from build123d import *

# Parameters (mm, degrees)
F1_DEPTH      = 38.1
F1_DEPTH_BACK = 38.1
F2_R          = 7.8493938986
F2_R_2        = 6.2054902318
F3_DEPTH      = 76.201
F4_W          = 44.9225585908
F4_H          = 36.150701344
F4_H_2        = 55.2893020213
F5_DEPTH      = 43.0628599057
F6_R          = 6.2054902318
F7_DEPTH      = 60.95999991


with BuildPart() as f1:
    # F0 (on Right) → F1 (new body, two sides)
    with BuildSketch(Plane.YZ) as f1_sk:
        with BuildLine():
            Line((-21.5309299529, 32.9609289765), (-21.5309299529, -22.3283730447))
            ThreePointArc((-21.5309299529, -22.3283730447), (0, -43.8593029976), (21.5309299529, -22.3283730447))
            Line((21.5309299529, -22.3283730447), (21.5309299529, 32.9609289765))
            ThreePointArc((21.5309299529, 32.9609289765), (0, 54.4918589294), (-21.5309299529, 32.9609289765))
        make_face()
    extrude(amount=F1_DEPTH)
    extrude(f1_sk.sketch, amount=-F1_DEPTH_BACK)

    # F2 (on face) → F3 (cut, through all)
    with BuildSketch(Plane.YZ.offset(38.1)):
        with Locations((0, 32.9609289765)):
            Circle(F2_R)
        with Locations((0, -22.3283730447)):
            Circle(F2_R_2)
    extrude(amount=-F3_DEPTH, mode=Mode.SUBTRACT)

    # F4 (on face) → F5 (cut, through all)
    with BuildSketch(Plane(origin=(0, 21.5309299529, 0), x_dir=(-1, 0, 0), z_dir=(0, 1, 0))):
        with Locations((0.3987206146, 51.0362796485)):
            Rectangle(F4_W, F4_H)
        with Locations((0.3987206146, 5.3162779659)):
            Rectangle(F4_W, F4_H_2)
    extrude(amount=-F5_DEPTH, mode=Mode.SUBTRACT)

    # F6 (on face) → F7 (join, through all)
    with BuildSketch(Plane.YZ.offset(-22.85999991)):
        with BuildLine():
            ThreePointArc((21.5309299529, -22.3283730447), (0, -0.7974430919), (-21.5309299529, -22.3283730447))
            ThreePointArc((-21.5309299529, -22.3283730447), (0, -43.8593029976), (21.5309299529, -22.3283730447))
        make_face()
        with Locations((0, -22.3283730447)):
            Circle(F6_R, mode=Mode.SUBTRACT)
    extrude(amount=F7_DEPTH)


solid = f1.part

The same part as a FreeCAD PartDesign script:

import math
import FreeCAD as App
import Part
import Sketcher
from FreeCAD import Vector
Q = App.Units.Quantity

doc = App.newDocument("Part")
body = doc.addObject("PartDesign::Body", "Body")

# Sketch on YZ plane
sketch1 = doc.addObject("Sketcher::SketchObject", "Sketch")
body.addObject(sketch1)
sketch1.AttachmentSupport = (doc.YZ_Plane, [""])
sketch1.MapMode = "FlatFace"
sketch1.addGeometry(Part.LineSegment(Vector(-22, 33, 0), Vector(-22, -22, 0)), False)
sketch1.addGeometry(Part.ArcOfCircle(Part.Circle(Vector(0, -22, 0), Vector(0, 0, 1), 22), math.radians(180), math.radians(360)), False)
sketch1.addGeometry(Part.LineSegment(Vector(22, -22, 0), Vector(22, 33, 0)), False)
sketch1.addGeometry(Part.ArcOfCircle(Part.Circle(Vector(0, 33, 0), Vector(0, 0, 1), 22), math.radians(0), math.radians(180)), False)
sketch1.addConstraint(Sketcher.Constraint("Tangent", 0, 2, 1, 1))
sketch1.addConstraint(Sketcher.Constraint("Tangent", 1, 2, 2, 1))
sketch1.addConstraint(Sketcher.Constraint("Tangent", 2, 2, 3, 1))
sketch1.addConstraint(Sketcher.Constraint("Tangent", 3, 2, 0, 1))
sketch1.addConstraint(Sketcher.Constraint("Vertical", 0))
sketch1.addConstraint(Sketcher.Constraint("Vertical", 2))
sketch1.addConstraint(Sketcher.Constraint("PointOnObject", 1, 3, -2))
sketch1.addConstraint(Sketcher.Constraint("Radius", 1, 21.53093))
sketch1.addConstraint(Sketcher.Constraint("DistanceY", 0, 2, 0, 1, 55.289302))
sketch1.addConstraint(Sketcher.Constraint("DistanceY", -1, 1, 3, 3, 32.960929))
pad1 = doc.addObject("PartDesign::Pad", "Pad")
body.addObject(pad1)
pad1.Profile = sketch1
pad1.Type = "TwoLengths"
pad1.Length = Q("1.5 in")
pad1.Length2 = Q("1.5 in")

# Sketch on YZ plane
sketch2 = doc.addObject("Sketcher::SketchObject", "Sketch001")
body.addObject(sketch2)
sketch2.AttachmentSupport = (doc.YZ_Plane, [""])
sketch2.MapMode = "FlatFace"
sketch2.AttachmentOffset = App.Placement(Vector(0, 0, 1.5 * 25.4), App.Rotation())
sketch2.addGeometry(Part.Circle(Vector(0, 33, 0), Vector(0, 0, 1), 8), False)
sketch2.addGeometry(Part.Circle(Vector(0, -22, 0), Vector(0, 0, 1), 6), False)
sketch2.addConstraint(Sketcher.Constraint("PointOnObject", 0, 3, -2))
sketch2.addConstraint(Sketcher.Constraint("PointOnObject", 1, 3, -2))
sketch2.addConstraint(Sketcher.Constraint("Diameter", 1, 12.41098))
sketch2.addConstraint(Sketcher.Constraint("Diameter", 0, 15.698788))
sketch2.addConstraint(Sketcher.Constraint("DistanceY", -1, 1, 0, 3, 32.960929))
sketch2.addConstraint(Sketcher.Constraint("DistanceY", 1, 3, -1, 1, 22.328373))
pocket1 = doc.addObject("PartDesign::Pocket", "Pocket")
body.addObject(pocket1)
pocket1.Profile = sketch2
pocket1.Type = "ThroughAll"

# Sketch on XZ plane
sketch3 = doc.addObject("Sketcher::SketchObject", "Sketch002")
body.addObject(sketch3)
sketch3.AttachmentSupport = (doc.XZ_Plane, [""])
sketch3.MapMode = "FlatFace"
sketch3.AttachmentOffset = App.Placement(Vector(0, 0, -21.53093), App.Rotation())
sketch3.addGeometry(Part.LineSegment(Vector(22, 69, 0), Vector(22, -22, 0)), False)
sketch3.addGeometry(Part.LineSegment(Vector(22, -22, 0), Vector(-23, -22, 0)), False)
sketch3.addGeometry(Part.LineSegment(Vector(-23, -22, 0), Vector(-23, 69, 0)), False)
sketch3.addGeometry(Part.LineSegment(Vector(-23, 69, 0), Vector(22, 69, 0)), False)
sketch3.addConstraint(Sketcher.Constraint("Coincident", 0, 2, 1, 1))
sketch3.addConstraint(Sketcher.Constraint("Coincident", 1, 2, 2, 1))
sketch3.addConstraint(Sketcher.Constraint("Coincident", 2, 2, 3, 1))
sketch3.addConstraint(Sketcher.Constraint("Coincident", 3, 2, 0, 1))
sketch3.addConstraint(Sketcher.Constraint("Vertical", 0))
sketch3.addConstraint(Sketcher.Constraint("Horizontal", 1))
sketch3.addConstraint(Sketcher.Constraint("Vertical", 2))
sketch3.addConstraint(Sketcher.Constraint("Horizontal", 3))
sketch3.addConstraint(Sketcher.Constraint("DistanceY", 0, 2, 0, 1, Q("3.6000001 in")))
sketch3.addConstraint(Sketcher.Constraint("DistanceX", 1, 2, -1, 1, Q("0.9 in")))
sketch3.addConstraint(Sketcher.Constraint("DistanceX", 1, 2, 1, 1, 44.922559))
sketch3.addConstraint(Sketcher.Constraint("DistanceY", -1, 1, 2, 2, 69.11163))
pocket2 = doc.addObject("PartDesign::Pocket", "Pocket001")
body.addObject(pocket2)
pocket2.Profile = sketch3
pocket2.Type = "ThroughAll"
pocket2.Reversed = True

# Sketch on YZ plane
sketch4 = doc.addObject("Sketcher::SketchObject", "Sketch003")
body.addObject(sketch4)
sketch4.AttachmentSupport = (doc.YZ_Plane, [""])
sketch4.MapMode = "FlatFace"
sketch4.AttachmentOffset = App.Placement(Vector(0, 0, -0.9 * 25.4), App.Rotation())
sketch4.addGeometry(Part.ArcOfCircle(Part.Circle(Vector(0, -22, 0), Vector(0, 0, 1), 22), math.radians(0), math.radians(180)), False)
sketch4.addGeometry(Part.ArcOfCircle(Part.Circle(Vector(0, -22, 0), Vector(0, 0, 1), 22), math.radians(180), math.radians(360)), False)
sketch4.addGeometry(Part.Circle(Vector(0, -22, 0), Vector(0, 0, 1), 6), False)
sketch4.addConstraint(Sketcher.Constraint("Tangent", 0, 1, 1, 2))
sketch4.addConstraint(Sketcher.Constraint("Coincident", 1, 1, 0, 2))
sketch4.addConstraint(Sketcher.Constraint("Coincident", 2, 3, 0, 3))
sketch4.addConstraint(Sketcher.Constraint("Symmetric", 0, 1, 1, 1, -2))
sketch4.addConstraint(Sketcher.Constraint("Horizontal", 2, 3, 0, 1))
sketch4.addConstraint(Sketcher.Constraint("Diameter", 2, 12.41098))
sketch4.addConstraint(Sketcher.Constraint("Radius", 0, 21.53093))
sketch4.addConstraint(Sketcher.Constraint("DistanceY", 0, 3, -1, 1, 22.328373))
pad2 = doc.addObject("PartDesign::Pad", "Pad001")
body.addObject(pad2)
pad2.Profile = sketch4
pad2.Length = Q("2.4 in")

doc.recompute()
